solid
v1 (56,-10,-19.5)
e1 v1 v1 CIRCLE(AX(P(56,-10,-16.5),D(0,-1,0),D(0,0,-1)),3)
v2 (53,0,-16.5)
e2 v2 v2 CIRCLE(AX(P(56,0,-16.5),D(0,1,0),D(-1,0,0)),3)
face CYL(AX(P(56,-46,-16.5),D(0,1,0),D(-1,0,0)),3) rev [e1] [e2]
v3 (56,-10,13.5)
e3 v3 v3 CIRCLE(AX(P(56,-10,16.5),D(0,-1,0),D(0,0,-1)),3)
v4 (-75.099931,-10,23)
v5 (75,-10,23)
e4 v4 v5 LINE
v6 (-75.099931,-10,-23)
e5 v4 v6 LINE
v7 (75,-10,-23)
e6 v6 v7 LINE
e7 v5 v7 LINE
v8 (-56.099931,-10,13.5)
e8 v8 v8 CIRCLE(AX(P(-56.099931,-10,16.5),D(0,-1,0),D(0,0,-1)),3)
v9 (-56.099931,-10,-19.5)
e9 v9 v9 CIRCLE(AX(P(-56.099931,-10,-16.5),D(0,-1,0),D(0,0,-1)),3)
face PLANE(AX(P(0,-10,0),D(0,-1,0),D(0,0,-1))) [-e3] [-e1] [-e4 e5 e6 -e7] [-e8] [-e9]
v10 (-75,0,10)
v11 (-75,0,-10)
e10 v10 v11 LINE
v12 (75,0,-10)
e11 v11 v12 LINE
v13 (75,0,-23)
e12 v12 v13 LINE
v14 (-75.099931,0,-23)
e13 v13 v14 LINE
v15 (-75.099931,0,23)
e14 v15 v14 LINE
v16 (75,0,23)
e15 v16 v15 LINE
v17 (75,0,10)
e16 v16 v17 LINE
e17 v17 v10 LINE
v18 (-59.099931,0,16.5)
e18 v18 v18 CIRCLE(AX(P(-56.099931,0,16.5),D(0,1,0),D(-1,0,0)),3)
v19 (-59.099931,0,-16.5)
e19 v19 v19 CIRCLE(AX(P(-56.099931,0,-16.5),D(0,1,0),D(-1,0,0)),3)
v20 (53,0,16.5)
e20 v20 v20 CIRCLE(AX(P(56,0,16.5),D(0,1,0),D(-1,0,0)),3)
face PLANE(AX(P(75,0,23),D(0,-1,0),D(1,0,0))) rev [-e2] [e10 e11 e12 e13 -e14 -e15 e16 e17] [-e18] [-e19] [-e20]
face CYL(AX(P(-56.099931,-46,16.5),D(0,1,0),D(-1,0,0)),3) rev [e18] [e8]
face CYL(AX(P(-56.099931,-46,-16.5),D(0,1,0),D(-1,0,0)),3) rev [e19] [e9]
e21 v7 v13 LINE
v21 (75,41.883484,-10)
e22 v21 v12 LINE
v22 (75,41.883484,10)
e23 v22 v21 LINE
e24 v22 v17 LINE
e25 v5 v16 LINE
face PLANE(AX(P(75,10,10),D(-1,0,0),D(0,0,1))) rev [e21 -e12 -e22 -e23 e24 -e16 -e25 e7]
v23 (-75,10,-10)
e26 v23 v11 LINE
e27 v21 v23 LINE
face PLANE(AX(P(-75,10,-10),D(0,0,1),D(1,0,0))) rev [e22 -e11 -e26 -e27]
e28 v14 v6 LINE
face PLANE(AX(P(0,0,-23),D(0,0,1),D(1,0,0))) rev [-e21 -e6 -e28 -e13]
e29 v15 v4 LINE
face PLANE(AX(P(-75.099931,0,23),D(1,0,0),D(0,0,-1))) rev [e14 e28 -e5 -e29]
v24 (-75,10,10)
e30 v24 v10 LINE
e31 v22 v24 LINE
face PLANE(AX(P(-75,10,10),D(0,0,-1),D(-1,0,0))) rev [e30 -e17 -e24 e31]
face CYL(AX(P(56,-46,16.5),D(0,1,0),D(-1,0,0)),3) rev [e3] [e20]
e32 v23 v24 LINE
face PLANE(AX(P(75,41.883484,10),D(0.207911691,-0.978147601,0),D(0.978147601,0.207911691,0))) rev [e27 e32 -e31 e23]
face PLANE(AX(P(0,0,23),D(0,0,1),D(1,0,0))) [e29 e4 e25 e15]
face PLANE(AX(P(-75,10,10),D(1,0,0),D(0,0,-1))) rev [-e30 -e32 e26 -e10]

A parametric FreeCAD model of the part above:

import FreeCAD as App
import Part
import Sketcher
from FreeCAD import Vector
Q = App.Units.Quantity

doc = App.newDocument("Part")
body = doc.addObject("PartDesign::Body", "Body")

sketch1 = body.newObject("Sketcher::SketchObject", "Sketch")
sketch1.AttachmentSupport = (doc.getObject("XZ_Plane"), [""])
sketch1.MapMode = "FlatFace"
sketch1.addGeometry(Part.LineSegment(Vector(-75, -10, 0), Vector(-75, 10, 0)), False)
sketch1.addGeometry(Part.LineSegment(Vector(-75, 10, 0), Vector(75, 10, 0)), False)
sketch1.addGeometry(Part.LineSegment(Vector(75, 10, 0), Vector(75, -10, 0)), False)
sketch1.addGeometry(Part.LineSegment(Vector(75, -10, 0), Vector(-75, -10, 0)), False)
sketch1.addConstraint(Sketcher.Constraint("Coincident", 0, 2, 1, 1))
sketch1.addConstraint(Sketcher.Constraint("Coincident", 1, 2, 2, 1))
sketch1.addConstraint(Sketcher.Constraint("Coincident", 2, 2, 3, 1))
sketch1.addConstraint(Sketcher.Constraint("Coincident", 3, 2, 0, 1))
sketch1.addConstraint(Sketcher.Constraint("Vertical", 0))
sketch1.addConstraint(Sketcher.Constraint("Horizontal", 1))
sketch1.addConstraint(Sketcher.Constraint("Vertical", 2))
sketch1.addConstraint(Sketcher.Constraint("Horizontal", 3))
sketch1.addConstraint(Sketcher.Constraint("Symmetric", 0, 2, 2, 2, -1, 1))
sketch1.addConstraint(Sketcher.Constraint("DistanceX", 1, 1, 1, 2, Q("150 mm")))
sketch1.addConstraint(Sketcher.Constraint("DistanceY", 0, 1, 0, 2, Q("20 mm")))
pad1 = body.newObject("PartDesign::Pad", "Pad")
pad1.Profile = sketch1
pad1.Length = 20
pad1.Midplane = True

sketch2 = body.newObject("Sketcher::SketchObject", "Sketch001")
sketch2.AttachmentSupport = (doc.getObject("XY_Plane"), [""])
sketch2.MapMode = "FlatFace"
sketch2.addGeometry(Part.LineSegment(Vector(-75, 10, 0), Vector(75, 10, 0)), False)
sketch2.addGeometry(Part.LineSegment(Vector(75, 10, 0), Vector(75, 42, 0)), False)
sketch2.addGeometry(Part.LineSegment(Vector(75, 42, 0), Vector(-75, 10, 0)), False)
sketch2.addConstraint(Sketcher.Constraint("Coincident", 0, 2, 1, 1))
sketch2.addConstraint(Sketcher.Constraint("Coincident", 1, 2, 2, 1))
sketch2.addConstraint(Sketcher.Constraint("Coincident", 2, 2, 0, 1))
sketch2.addConstraint(Sketcher.Constraint("Horizontal", 0))
sketch2.addConstraint(Sketcher.Constraint("Vertical", 1))
sketch2.addConstraint(Sketcher.Constraint("DistanceX", 0, 1, 0, 2, Q("150 mm")))
sketch2.addConstraint(Sketcher.Constraint("Angle", 2, Q("-168 deg")))
sketch2.addConstraint(Sketcher.Constraint("DistanceX", -1, 1, 0, 2, Q("75 mm")))
sketch2.addConstraint(Sketcher.Constraint("DistanceY", -1, 1, 0, 2, Q("10 mm")))
pad2 = body.newObject("PartDesign::Pad", "Pad001")
pad2.Profile = sketch2
pad2.Length = 20
pad2.Midplane = True

sketch3 = body.newObject("Sketcher::SketchObject", "Sketch002")
sketch3.AttachmentSupport = (doc.getObject("XY_Plane"), [""])
sketch3.MapMode = "FlatFace"
sketch3.addGeometry(Part.LineSegment(Vector(-75, 0, 0), Vector(-75, -10, 0)), False)
sketch3.addGeometry(Part.LineSegment(Vector(-75, -10, 0), Vector(75, -10, 0)), False)
sketch3.addGeometry(Part.LineSegment(Vector(75, -10, 0), Vector(75, 0, 0)), False)
sketch3.addGeometry(Part.LineSegment(Vector(75, 0, 0), Vector(-75, 0, 0)), False)
sketch3.addConstraint(Sketcher.Constraint("Coincident", 0, 2, 1, 1))
sketch3.addConstraint(Sketcher.Constraint("Coincident", 1, 2, 2, 1))
sketch3.addConstraint(Sketcher.Constraint("Coincident", 2, 2, 3, 1))
sketch3.addConstraint(Sketcher.Constraint("Coincident", 3, 2, 0, 1))
sketch3.addConstraint(Sketcher.Constraint("Vertical", 0))
sketch3.addConstraint(Sketcher.Constraint("Horizontal", 1))
sketch3.addConstraint(Sketcher.Constraint("Vertical", 2))
sketch3.addConstraint(Sketcher.Constraint("Horizontal", 3))
sketch3.addConstraint(Sketcher.Constraint("PointOnObject", 2, 2, -1))
sketch3.addConstraint(Sketcher.Constraint("DistanceY", 0, 2, 0, 1, Q("10 mm")))
sketch3.addConstraint(Sketcher.Constraint("DistanceX", -1, 1, 1, 2, Q("75 mm")))
sketch3.addConstraint(Sketcher.Constraint("DistanceX", 1, 1, 1, 2, Q("150.099931 mm")))
pad3 = body.newObject("PartDesign::Pad", "Pad002")
pad3.Profile = sketch3
pad3.Length = 46
pad3.Midplane = True

sketch4 = body.newObject("Sketcher::SketchObject", "Sketch003")
sketch4.AttachmentSupport = (doc.getObject("XZ_Plane"), [""])
sketch4.MapMode = "FlatFace"
sketch4.addGeometry(Part.Circle(Vector(-56.1, -16.5, 0), Vector(0, 0, 1), 3), False)
sketch4.addGeometry(Part.Circle(Vector(56, -16.5, 0), Vector(0, 0, 1), 3), False)
sketch4.addGeometry(Part.Circle(Vector(56, 16.5, 0), Vector(0, 0, 1), 3), False)
sketch4.addGeometry(Part.Circle(Vector(-56.1, 16.5, 0), Vector(0, 0, 1), 3), False)
sketch4.addConstraint(Sketcher.Constraint("Equal", 0, 1))
sketch4.addConstraint(Sketcher.Constraint("Equal", 1, 2))
sketch4.addConstraint(Sketcher.Constraint("Equal", 2, 3))
sketch4.addConstraint(Sketcher.Constraint("Symmetric", 1, 3, 2, 3, -1))
sketch4.addConstraint(Sketcher.Constraint("Symmetric", 0, 3, 3, 3, -1))
sketch4.addConstraint(Sketcher.Constraint("Horizontal", 0, 3, 1, 3))
sketch4.addConstraint(Sketcher.Constraint("Diameter", 0, Q("6 mm")))
sketch4.addConstraint(Sketcher.Constraint("DistanceX", -1, 1, 1, 3, Q("56 mm")))
sketch4.addConstraint(Sketcher.Constraint("DistanceY", 1, 3, 2, 3, Q("33 mm")))
sketch4.addConstraint(Sketcher.Constraint("DistanceX", 0, 3, -1, 1, Q("56.099931 mm")))
pocket1 = body.newObject("PartDesign::Pocket", "Pocket")
pocket1.Profile = sketch4
pocket1.Length = 46
pocket1.Reversed = True

doc.recompute()
